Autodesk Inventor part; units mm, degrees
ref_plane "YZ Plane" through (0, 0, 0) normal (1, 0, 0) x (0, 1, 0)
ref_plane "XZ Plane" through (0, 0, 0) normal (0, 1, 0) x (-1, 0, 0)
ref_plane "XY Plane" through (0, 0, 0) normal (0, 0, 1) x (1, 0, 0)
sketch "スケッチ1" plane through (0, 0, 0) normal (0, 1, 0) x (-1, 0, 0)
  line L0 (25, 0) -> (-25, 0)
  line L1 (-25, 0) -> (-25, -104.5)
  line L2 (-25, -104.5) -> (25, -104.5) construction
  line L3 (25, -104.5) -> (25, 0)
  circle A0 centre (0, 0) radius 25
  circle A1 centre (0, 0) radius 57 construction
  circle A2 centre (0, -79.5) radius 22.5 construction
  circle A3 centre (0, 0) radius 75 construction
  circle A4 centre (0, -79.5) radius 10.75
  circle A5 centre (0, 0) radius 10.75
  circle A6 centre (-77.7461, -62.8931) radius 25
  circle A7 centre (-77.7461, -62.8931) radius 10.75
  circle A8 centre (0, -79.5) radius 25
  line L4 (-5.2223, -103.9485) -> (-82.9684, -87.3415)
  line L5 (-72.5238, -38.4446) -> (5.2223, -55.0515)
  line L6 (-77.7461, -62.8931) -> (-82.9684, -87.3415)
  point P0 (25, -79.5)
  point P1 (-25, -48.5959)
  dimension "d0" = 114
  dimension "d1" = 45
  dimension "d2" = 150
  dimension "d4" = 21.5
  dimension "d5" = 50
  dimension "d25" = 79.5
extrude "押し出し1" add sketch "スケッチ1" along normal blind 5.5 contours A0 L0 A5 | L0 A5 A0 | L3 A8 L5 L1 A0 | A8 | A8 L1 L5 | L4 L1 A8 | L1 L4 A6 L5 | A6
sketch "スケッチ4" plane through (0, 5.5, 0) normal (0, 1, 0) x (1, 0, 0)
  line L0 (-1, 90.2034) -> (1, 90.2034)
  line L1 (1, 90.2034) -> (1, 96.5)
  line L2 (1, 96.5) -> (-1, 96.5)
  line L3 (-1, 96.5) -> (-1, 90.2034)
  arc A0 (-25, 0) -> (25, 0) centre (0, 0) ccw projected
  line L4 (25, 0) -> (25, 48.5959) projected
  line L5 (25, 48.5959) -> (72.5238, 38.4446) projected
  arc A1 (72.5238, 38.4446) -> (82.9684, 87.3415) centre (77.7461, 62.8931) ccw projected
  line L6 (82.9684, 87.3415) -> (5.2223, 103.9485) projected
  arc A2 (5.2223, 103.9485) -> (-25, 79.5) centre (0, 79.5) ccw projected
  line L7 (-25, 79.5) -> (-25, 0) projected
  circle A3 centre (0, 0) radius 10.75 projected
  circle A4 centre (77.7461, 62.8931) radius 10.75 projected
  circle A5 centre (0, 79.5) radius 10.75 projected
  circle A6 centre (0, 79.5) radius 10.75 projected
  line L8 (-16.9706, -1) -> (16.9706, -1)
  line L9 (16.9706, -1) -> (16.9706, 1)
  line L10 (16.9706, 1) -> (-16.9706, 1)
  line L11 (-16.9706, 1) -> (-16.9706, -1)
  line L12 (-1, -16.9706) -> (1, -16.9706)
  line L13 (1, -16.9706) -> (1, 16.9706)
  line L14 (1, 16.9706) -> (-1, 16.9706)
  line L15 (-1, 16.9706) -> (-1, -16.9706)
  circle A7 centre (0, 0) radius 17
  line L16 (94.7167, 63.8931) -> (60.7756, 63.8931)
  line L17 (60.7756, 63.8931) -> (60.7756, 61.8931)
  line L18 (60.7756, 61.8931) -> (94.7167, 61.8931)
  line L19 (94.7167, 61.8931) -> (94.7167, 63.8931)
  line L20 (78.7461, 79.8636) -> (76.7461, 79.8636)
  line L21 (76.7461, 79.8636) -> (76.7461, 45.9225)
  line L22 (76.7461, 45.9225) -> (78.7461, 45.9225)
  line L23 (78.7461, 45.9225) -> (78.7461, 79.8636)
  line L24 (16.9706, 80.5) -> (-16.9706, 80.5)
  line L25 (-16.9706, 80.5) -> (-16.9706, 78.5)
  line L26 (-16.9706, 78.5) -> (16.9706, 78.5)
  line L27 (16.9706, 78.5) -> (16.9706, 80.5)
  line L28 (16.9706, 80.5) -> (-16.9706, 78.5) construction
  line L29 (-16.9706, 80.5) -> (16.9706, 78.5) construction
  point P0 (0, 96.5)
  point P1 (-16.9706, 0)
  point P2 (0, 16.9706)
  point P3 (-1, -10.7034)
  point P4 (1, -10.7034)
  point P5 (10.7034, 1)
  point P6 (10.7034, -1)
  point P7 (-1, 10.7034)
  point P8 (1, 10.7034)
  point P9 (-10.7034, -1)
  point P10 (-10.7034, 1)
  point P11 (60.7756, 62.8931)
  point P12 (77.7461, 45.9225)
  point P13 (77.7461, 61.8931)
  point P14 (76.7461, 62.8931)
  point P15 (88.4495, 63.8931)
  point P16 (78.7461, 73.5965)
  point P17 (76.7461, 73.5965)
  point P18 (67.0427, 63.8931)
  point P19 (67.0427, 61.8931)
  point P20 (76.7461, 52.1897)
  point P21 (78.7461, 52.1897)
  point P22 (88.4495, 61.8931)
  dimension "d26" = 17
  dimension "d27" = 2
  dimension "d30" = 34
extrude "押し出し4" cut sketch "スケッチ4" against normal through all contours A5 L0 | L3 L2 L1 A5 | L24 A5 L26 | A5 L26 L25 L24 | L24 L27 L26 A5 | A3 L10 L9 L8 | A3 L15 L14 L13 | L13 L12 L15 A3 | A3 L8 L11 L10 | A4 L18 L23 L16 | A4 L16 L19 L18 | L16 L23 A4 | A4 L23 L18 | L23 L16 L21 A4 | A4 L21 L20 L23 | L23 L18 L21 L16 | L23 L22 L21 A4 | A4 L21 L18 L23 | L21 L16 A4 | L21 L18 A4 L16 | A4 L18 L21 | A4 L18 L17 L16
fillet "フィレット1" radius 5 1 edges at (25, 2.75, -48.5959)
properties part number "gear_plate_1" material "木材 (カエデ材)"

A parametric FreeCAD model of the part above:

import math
import FreeCAD as App
import Part
import Sketcher

V = App.Vector


def edges_at(feature, points):
    """Names of the edges that pass closest to the given points."""
    edges = feature.Shape.Edges
    near = lambda p: min(range(len(edges)), key=lambda i: edges[i].distToShape(Part.Vertex(*p))[0])
    return sorted({f"Edge{near(p) + 1}" for p in points})

doc = App.newDocument("Part")
params = doc.addObject("Spreadsheet::Sheet", "Params")
for row, (alias, value) in enumerate([
    ("sketch1_radius", "25 mm"),
    ("sketch1_diameter", "21.5 mm"),
    ("sketch1_height", "79.5 mm"),
    ("sketch1_length", "79.5 mm"),
    ("pad1_length", "5.5 mm"),
    ("sketch2_width", "2 mm"),
    ("sketch2_radius", "10.75 mm"),
    ("fillet_radius", "5 mm"),
], start=1):
    params.set(f"A{row}", alias)
    params.set(f"B{row}", "=" + value)
    params.setAlias(f"B{row}", alias)

body = doc.addObject("PartDesign::Body", "Body")

sketch1 = body.newObject("Sketcher::SketchObject", "Sketch")
sketch1.AttachmentSupport = (doc.getObject("XZ_Plane"), [""])
sketch1.MapMode = "FlatFace"
sketch1.addGeometry([
    Part.LineSegment(V(-25, -80, 0), V(-25, 0, 0)),
    Part.ArcOfCircle(Part.Circle(V(0, 0, 0), V(0, 0, 1), 25), math.radians(0), math.radians(180)),
    Part.LineSegment(V(25, 0, 0), V(25, -49, 0)),
    Part.LineSegment(V(25, -49, 0), V(73, -38, 0)),
    Part.ArcOfCircle(Part.Circle(V(78, -63, 0), V(0, 0, 1), 25), math.radians(-78), math.radians(102)),
    Part.LineSegment(V(83, -87, 0), V(5, -104, 0)),
    Part.ArcOfCircle(Part.Circle(V(0, -80, 0), V(0, 0, 1), 25), math.radians(180), math.radians(282)),
    Part.Circle(V(0, 0, 0), V(0, 0, 1), 11),
    Part.Circle(V(0, -80, 0), V(0, 0, 1), 11),
    Part.Circle(V(78, -63, 0), V(0, 0, 1), 11),
], False)
sketch1.addConstraint([
    Sketcher.Constraint("Tangent", 0, 2, 1, 2),
    Sketcher.Constraint("Tangent", 1, 1, 2, 1),
    Sketcher.Constraint("Coincident", 2, 2, 3, 1),
    Sketcher.Constraint("Tangent", 3, 2, 4, 2),
    Sketcher.Constraint("Tangent", 4, 1, 5, 1),
    Sketcher.Constraint("Tangent", 5, 2, 6, 2),
    Sketcher.Constraint("Tangent", 6, 1, 0, 1),
    Sketcher.Constraint("Vertical", 0),
    Sketcher.Constraint("Vertical", 2),
    Sketcher.Constraint("Coincident", 1, 3, -1, 1),
    Sketcher.Constraint("Coincident", 7, 3, -1, 1),
    Sketcher.Constraint("Coincident", 8, 3, 6, 3),
    Sketcher.Constraint("Coincident", 9, 3, 4, 3),
    Sketcher.Constraint("Equal", 1, 4),
    Sketcher.Constraint("Equal", 4, 6),
    Sketcher.Constraint("Equal", 7, 8),
    Sketcher.Constraint("Equal", 8, 9),
    Sketcher.Constraint("Parallel", 3, 5),
    Sketcher.Constraint("Radius", 1, 25.0),
    Sketcher.Constraint("Diameter", 7, 21.5),
    Sketcher.Constraint("DistanceY", 0, 1, 0, 2, 79.5),
    Sketcher.Constraint("Distance", 5, 79.5),
    Sketcher.Constraint("DistanceY", 2, 2, 2, 1, 48.596),
])
sketch1.setExpression("Constraints[18]", "Params.sketch1_radius")
sketch1.setExpression("Constraints[19]", "Params.sketch1_diameter")
sketch1.setExpression("Constraints[20]", "Params.sketch1_height")
sketch1.setExpression("Constraints[21]", "Params.sketch1_length")
pad1 = body.newObject("PartDesign::Pad", "Pad")
pad1.Profile = sketch1
pad1.setExpression("Length", "Params.pad1_length")
pad1.Reversed = True

sketch2 = body.newObject("Sketcher::SketchObject", "Sketch001")
sketch2.AttachmentSupport = (doc.getObject("XZ_Plane"), [""])
sketch2.MapMode = "FlatFace"
sketch2.AttachmentOffset = App.Placement(V(0, 0, -5.5), App.Rotation())
sketch2.addGeometry([
    Part.LineSegment(V(-1, -90.2, 0), V(1, -90.2, 0)),
    Part.LineSegment(V(1, -90.2, 0), V(1, -96.5, 0)),
    Part.LineSegment(V(1, -96.5, 0), V(-1, -96.5, 0)),
    Part.LineSegment(V(-1, -96.5, 0), V(-1, -90.2, 0)),
    Part.LineSegment(V(-17, -80.5, 0), V(-17, -78.5, 0)),
    Part.LineSegment(V(-17, -78.5, 0), V(17, -78.5, 0)),
    Part.LineSegment(V(17, -78.5, 0), V(17, -80.5, 0)),
    Part.LineSegment(V(17, -80.5, 0), V(-17, -80.5, 0)),
    Part.ArcOfCircle(Part.Circle(V(0, 0, 0), V(0, 0, 1), 10.8), math.radians(-5.34), math.radians(5.34)),
    Part.LineSegment(V(10.7, 1, 0), V(17, 1, 0)),
    Part.LineSegment(V(17, 1, 0), V(17, -1, 0)),
    Part.LineSegment(V(17, -1, 0), V(10.7, -1, 0)),
    Part.ArcOfCircle(Part.Circle(V(0, 0, 0), V(0, 0, 1), 10.8), math.radians(-95.34), math.radians(-84.66)),
    Part.LineSegment(V(1, -10.7, 0), V(1, -17, 0)),
    Part.LineSegment(V(1, -17, 0), V(-1, -17, 0)),
    Part.LineSegment(V(-1, -17, 0), V(-1, -10.7, 0)),
    Part.LineSegment(V(1, 17, 0), V(1, 10.7, 0)),
    Part.ArcOfCircle(Part.Circle(V(0, 0, 0), V(0, 0, 1), 10.8), math.radians(84.66), math.radians(95.34)),
    Part.LineSegment(V(-1, 10.7, 0), V(-1, 17, 0)),
    Part.LineSegment(V(-1, 17, 0), V(1, 17, 0)),
    Part.ArcOfCircle(Part.Circle(V(0, 0, 0), V(0, 0, 1), 10.8), math.radians(174.66), math.radians(185.34)),
    Part.LineSegment(V(-10.7, -1, 0), V(-17, -1, 0)),
    Part.LineSegment(V(-17, -1, 0), V(-17, 1, 0)),
    Part.LineSegment(V(-17, 1, 0), V(-10.7, 1, 0)),
    Part.LineSegment(V(88.4, -61.9, 0), V(94.7, -61.9, 0)),
    Part.LineSegment(V(94.7, -61.9, 0), V(94.7, -63.9, 0)),
    Part.LineSegment(V(94.7, -63.9, 0), V(88.4, -63.9, 0)),
    Part.ArcOfCircle(Part.Circle(V(77.7, -62.9, 0), V(0, 0, 1), 10.8), math.radians(-85), math.radians(-5)),
    Part.LineSegment(V(78.7, -73.6, 0), V(78.7, -79.9, 0)),
    Part.LineSegment(V(78.7, -79.9, 0), V(76.7, -79.9, 0)),
    Part.LineSegment(V(76.7, -79.9, 0), V(76.7, -73.6, 0)),
    Part.ArcOfCircle(Part.Circle(V(77.7, -62.9, 0), V(0, 0, 1), 10.8), math.radians(-175), math.radians(-95)),
    Part.LineSegment(V(67, -63.9, 0), V(60.8, -63.9, 0)),
    Part.LineSegment(V(60.8, -63.9, 0), V(60.8, -61.9, 0)),
    Part.LineSegment(V(60.8, -61.9, 0), V(67, -61.9, 0)),
    Part.ArcOfCircle(Part.Circle(V(77.7, -62.9, 0), V(0, 0, 1), 10.8), math.radians(95), math.radians(175)),
    Part.LineSegment(V(76.7, -52.2, 0), V(76.7, -45.9, 0)),
    Part.LineSegment(V(76.7, -45.9, 0), V(78.7, -45.9, 0)),
    Part.LineSegment(V(78.7, -45.9, 0), V(78.7, -52.2, 0)),
    Part.ArcOfCircle(Part.Circle(V(77.7, -62.9, 0), V(0, 0, 1), 10.8), math.radians(5), math.radians(85)),
], False)
sketch2.addConstraint([
    Sketcher.Constraint("Coincident", 0, 2, 1, 1),
    Sketcher.Constraint("Coincident", 1, 2, 2, 1),
    Sketcher.Constraint("Coincident", 2, 2, 3, 1),
    Sketcher.Constraint("Coincident", 3, 2, 0, 1),
    Sketcher.Constraint("Coincident", 4, 2, 5, 1),
    Sketcher.Constraint("Coincident", 5, 2, 6, 1),
    Sketcher.Constraint("Coincident", 6, 2, 7, 1),
    Sketcher.Constraint("Coincident", 7, 2, 4, 1),
    Sketcher.Constraint("Coincident", 8, 2, 9, 1),
    Sketcher.Constraint("Coincident", 9, 2, 10, 1),
    Sketcher.Constraint("Coincident", 10, 2, 11, 1),
    Sketcher.Constraint("Coincident", 11, 2, 8, 1),
    Sketcher.Constraint("Coincident", 12, 2, 13, 1),
    Sketcher.Constraint("Coincident", 13, 2, 14, 1),
    Sketcher.Constraint("Coincident", 14, 2, 15, 1),
    Sketcher.Constraint("Coincident", 15, 2, 12, 1),
    Sketcher.Constraint("Coincident", 16, 2, 17, 1),
    Sketcher.Constraint("Coincident", 17, 2, 18, 1),
    Sketcher.Constraint("Coincident", 18, 2, 19, 1),
    Sketcher.Constraint("Coincident", 19, 2, 16, 1),
    Sketcher.Constraint("Coincident", 20, 2, 21, 1),
    Sketcher.Constraint("Coincident", 21, 2, 22, 1),
    Sketcher.Constraint("Coincident", 22, 2, 23, 1),
    Sketcher.Constraint("Coincident", 23, 2, 20, 1),
    Sketcher.Constraint("Coincident", 24, 2, 25, 1),
    Sketcher.Constraint("Coincident", 25, 2, 26, 1),
    Sketcher.Constraint("Coincident", 26, 2, 27, 2),
    Sketcher.Constraint("Coincident", 27, 1, 28, 1),
    Sketcher.Constraint("Coincident", 28, 2, 29, 1),
    Sketcher.Constraint("Coincident", 29, 2, 30, 1),
    Sketcher.Constraint("Coincident", 30, 2, 31, 2),
    Sketcher.Constraint("Coincident", 31, 1, 32, 1),
    Sketcher.Constraint("Coincident", 32, 2, 33, 1),
    Sketcher.Constraint("Coincident", 33, 2, 34, 1),
    Sketcher.Constraint("Coincident", 34, 2, 35, 2),
    Sketcher.Constraint("Coincident", 35, 1, 36, 1),
    Sketcher.Constraint("Coincident", 36, 2, 37, 1),
    Sketcher.Constraint("Coincident", 37, 2, 38, 1),
    Sketcher.Constraint("Coincident", 38, 2, 39, 2),
    Sketcher.Constraint("Coincident", 39, 1, 24, 1),
    Sketcher.Constraint("Horizontal", 0),
    Sketcher.Constraint("Vertical", 1),
    Sketcher.Constraint("Horizontal", 2),
    Sketcher.Constraint("Vertical", 3),
    Sketcher.Constraint("Vertical", 4),
    Sketcher.Constraint("Horizontal", 5),
    Sketcher.Constraint("Vertical", 6),
    Sketcher.Constraint("Horizontal", 7),
    Sketcher.Constraint("Horizontal", 9),
    Sketcher.Constraint("Vertical", 10),
    Sketcher.Constraint("Horizontal", 11),
    Sketcher.Constraint("Vertical", 13),
    Sketcher.Constraint("Horizontal", 14),
    Sketcher.Constraint("Vertical", 15),
    Sketcher.Constraint("Vertical", 16),
    Sketcher.Constraint("Vertical", 18),
    Sketcher.Constraint("Horizontal", 19),
    Sketcher.Constraint("Horizontal", 21),
    Sketcher.Constraint("Vertical", 22),
    Sketcher.Constraint("Horizontal", 23),
    Sketcher.Constraint("Horizontal", 24),
    Sketcher.Constraint("Vertical", 25),
    Sketcher.Constraint("Horizontal", 26),
    Sketcher.Constraint("Vertical", 28),
    Sketcher.Constraint("Horizontal", 29),
    Sketcher.Constraint("Vertical", 30),
    Sketcher.Constraint("Horizontal", 32),
    Sketcher.Constraint("Vertical", 33),
    Sketcher.Constraint("Horizontal", 34),
    Sketcher.Constraint("Vertical", 36),
    Sketcher.Constraint("Horizontal", 37),
    Sketcher.Constraint("Vertical", 38),
    Sketcher.Constraint("Coincident", 8, 3, -1, 1),
    Sketcher.Constraint("Coincident", 12, 3, -1, 1),
    Sketcher.Constraint("Coincident", 17, 3, -1, 1),
    Sketcher.Constraint("Coincident", 20, 3, -1, 1),
    Sketcher.Constraint("Coincident", 31, 3, 27, 3),
    Sketcher.Constraint("Coincident", 35, 3, 27, 3),
    Sketcher.Constraint("Coincident", 39, 3, 27, 3),
    Sketcher.Constraint("Equal", 8, 12),
    Sketcher.Constraint("Equal", 12, 17),
    Sketcher.Constraint("Equal", 17, 20),
    Sketcher.Constraint("Equal", 20, 27),
    Sketcher.Constraint("Equal", 27, 31),
    Sketcher.Constraint("Equal", 31, 35),
    Sketcher.Constraint("Equal", 35, 39),
    Sketcher.Constraint("Symmetric", 13, 2, 18, 2, -1, 1),
    Sketcher.Constraint("Symmetric", 9, 2, 21, 2, -1, 1),
    Sketcher.Constraint("Horizontal", 12, 2, 15, 2),
    Sketcher.Constraint("Horizontal", 16, 2, 17, 2),
    Sketcher.Constraint("Horizontal", 11, 2, 20, 2),
    Sketcher.Constraint("Horizontal", 9, 2, 22, 2),
    Sketcher.Constraint("Horizontal", 27, 1, 30, 2),
    Sketcher.Constraint("Horizontal", 26, 2, 31, 1),
    Sketcher.Constraint("Horizontal", 24, 2, 33, 2),
    Sketcher.Constraint("Horizontal", 35, 1, 38, 2),
    Sketcher.Constraint("Vertical", 6, 2, 9, 2),
    Sketcher.Constraint("Vertical", 1, 2, 12, 2),
    Sketcher.Constraint("Vertical", 3, 2, 14, 2),
    Sketcher.Constraint("Vertical", 7, 2, 21, 2),
    Sketcher.Constraint("Vertical", 31, 1, 34, 2),
    Sketcher.Constraint("Vertical", 30, 2, 35, 1),
    Sketcher.Constraint("Equal", 23, 24),
    Sketcher.Constraint("Equal", 19, 29),
    Sketcher.Constraint("Equal", 26, 32),
    Sketcher.Constraint("Equal", 37, 4),
    Sketcher.Constraint("Equal", 6, 10),
    Sketcher.Constraint("Equal", 34, 13),
    Sketcher.Constraint("Equal", 22, 25),
    Sketcher.Constraint("Equal", 18, 28),
    Sketcher.Constraint("Equal", 30, 36),
    Sketcher.Constraint("DistanceX", 0, 1, 0, 2, 2.0),
    Sketcher.Constraint("Radius", 8, 10.75),
    Sketcher.Constraint("DistanceY", 2, 2, 4, 2, 18.0),
    Sketcher.Constraint("DistanceY", 1, 2, -1, 1, 96.5),
    Sketcher.Constraint("DistanceX", 32, 2, 32, 1, 6.267),
    Sketcher.Constraint("DistanceY", 1, 2, 1, 1, 6.2966),
    Sketcher.Constraint("DistanceX", -1, 1, 27, 3, 77.746),
    Sketcher.Constraint("DistanceY", 27, 3, -1, 1, 62.893),
])
sketch2.setExpression("Constraints[111]", "Params.sketch2_width")
sketch2.setExpression("Constraints[112]", "Params.sketch2_radius")
pocket1 = body.newObject("PartDesign::Pocket", "Pocket")
pocket1.Profile = sketch2
pocket1.Type = "ThroughAll"
pocket1.Reversed = True
doc.recompute()

fillet = body.newObject("PartDesign::Fillet", "Fillet")
fillet.Base = (pocket1, edges_at(pocket1, [(25, 2.75, -48.596)]))
fillet.setExpression("Radius", "Params.fillet_radius")

doc.recompute()
